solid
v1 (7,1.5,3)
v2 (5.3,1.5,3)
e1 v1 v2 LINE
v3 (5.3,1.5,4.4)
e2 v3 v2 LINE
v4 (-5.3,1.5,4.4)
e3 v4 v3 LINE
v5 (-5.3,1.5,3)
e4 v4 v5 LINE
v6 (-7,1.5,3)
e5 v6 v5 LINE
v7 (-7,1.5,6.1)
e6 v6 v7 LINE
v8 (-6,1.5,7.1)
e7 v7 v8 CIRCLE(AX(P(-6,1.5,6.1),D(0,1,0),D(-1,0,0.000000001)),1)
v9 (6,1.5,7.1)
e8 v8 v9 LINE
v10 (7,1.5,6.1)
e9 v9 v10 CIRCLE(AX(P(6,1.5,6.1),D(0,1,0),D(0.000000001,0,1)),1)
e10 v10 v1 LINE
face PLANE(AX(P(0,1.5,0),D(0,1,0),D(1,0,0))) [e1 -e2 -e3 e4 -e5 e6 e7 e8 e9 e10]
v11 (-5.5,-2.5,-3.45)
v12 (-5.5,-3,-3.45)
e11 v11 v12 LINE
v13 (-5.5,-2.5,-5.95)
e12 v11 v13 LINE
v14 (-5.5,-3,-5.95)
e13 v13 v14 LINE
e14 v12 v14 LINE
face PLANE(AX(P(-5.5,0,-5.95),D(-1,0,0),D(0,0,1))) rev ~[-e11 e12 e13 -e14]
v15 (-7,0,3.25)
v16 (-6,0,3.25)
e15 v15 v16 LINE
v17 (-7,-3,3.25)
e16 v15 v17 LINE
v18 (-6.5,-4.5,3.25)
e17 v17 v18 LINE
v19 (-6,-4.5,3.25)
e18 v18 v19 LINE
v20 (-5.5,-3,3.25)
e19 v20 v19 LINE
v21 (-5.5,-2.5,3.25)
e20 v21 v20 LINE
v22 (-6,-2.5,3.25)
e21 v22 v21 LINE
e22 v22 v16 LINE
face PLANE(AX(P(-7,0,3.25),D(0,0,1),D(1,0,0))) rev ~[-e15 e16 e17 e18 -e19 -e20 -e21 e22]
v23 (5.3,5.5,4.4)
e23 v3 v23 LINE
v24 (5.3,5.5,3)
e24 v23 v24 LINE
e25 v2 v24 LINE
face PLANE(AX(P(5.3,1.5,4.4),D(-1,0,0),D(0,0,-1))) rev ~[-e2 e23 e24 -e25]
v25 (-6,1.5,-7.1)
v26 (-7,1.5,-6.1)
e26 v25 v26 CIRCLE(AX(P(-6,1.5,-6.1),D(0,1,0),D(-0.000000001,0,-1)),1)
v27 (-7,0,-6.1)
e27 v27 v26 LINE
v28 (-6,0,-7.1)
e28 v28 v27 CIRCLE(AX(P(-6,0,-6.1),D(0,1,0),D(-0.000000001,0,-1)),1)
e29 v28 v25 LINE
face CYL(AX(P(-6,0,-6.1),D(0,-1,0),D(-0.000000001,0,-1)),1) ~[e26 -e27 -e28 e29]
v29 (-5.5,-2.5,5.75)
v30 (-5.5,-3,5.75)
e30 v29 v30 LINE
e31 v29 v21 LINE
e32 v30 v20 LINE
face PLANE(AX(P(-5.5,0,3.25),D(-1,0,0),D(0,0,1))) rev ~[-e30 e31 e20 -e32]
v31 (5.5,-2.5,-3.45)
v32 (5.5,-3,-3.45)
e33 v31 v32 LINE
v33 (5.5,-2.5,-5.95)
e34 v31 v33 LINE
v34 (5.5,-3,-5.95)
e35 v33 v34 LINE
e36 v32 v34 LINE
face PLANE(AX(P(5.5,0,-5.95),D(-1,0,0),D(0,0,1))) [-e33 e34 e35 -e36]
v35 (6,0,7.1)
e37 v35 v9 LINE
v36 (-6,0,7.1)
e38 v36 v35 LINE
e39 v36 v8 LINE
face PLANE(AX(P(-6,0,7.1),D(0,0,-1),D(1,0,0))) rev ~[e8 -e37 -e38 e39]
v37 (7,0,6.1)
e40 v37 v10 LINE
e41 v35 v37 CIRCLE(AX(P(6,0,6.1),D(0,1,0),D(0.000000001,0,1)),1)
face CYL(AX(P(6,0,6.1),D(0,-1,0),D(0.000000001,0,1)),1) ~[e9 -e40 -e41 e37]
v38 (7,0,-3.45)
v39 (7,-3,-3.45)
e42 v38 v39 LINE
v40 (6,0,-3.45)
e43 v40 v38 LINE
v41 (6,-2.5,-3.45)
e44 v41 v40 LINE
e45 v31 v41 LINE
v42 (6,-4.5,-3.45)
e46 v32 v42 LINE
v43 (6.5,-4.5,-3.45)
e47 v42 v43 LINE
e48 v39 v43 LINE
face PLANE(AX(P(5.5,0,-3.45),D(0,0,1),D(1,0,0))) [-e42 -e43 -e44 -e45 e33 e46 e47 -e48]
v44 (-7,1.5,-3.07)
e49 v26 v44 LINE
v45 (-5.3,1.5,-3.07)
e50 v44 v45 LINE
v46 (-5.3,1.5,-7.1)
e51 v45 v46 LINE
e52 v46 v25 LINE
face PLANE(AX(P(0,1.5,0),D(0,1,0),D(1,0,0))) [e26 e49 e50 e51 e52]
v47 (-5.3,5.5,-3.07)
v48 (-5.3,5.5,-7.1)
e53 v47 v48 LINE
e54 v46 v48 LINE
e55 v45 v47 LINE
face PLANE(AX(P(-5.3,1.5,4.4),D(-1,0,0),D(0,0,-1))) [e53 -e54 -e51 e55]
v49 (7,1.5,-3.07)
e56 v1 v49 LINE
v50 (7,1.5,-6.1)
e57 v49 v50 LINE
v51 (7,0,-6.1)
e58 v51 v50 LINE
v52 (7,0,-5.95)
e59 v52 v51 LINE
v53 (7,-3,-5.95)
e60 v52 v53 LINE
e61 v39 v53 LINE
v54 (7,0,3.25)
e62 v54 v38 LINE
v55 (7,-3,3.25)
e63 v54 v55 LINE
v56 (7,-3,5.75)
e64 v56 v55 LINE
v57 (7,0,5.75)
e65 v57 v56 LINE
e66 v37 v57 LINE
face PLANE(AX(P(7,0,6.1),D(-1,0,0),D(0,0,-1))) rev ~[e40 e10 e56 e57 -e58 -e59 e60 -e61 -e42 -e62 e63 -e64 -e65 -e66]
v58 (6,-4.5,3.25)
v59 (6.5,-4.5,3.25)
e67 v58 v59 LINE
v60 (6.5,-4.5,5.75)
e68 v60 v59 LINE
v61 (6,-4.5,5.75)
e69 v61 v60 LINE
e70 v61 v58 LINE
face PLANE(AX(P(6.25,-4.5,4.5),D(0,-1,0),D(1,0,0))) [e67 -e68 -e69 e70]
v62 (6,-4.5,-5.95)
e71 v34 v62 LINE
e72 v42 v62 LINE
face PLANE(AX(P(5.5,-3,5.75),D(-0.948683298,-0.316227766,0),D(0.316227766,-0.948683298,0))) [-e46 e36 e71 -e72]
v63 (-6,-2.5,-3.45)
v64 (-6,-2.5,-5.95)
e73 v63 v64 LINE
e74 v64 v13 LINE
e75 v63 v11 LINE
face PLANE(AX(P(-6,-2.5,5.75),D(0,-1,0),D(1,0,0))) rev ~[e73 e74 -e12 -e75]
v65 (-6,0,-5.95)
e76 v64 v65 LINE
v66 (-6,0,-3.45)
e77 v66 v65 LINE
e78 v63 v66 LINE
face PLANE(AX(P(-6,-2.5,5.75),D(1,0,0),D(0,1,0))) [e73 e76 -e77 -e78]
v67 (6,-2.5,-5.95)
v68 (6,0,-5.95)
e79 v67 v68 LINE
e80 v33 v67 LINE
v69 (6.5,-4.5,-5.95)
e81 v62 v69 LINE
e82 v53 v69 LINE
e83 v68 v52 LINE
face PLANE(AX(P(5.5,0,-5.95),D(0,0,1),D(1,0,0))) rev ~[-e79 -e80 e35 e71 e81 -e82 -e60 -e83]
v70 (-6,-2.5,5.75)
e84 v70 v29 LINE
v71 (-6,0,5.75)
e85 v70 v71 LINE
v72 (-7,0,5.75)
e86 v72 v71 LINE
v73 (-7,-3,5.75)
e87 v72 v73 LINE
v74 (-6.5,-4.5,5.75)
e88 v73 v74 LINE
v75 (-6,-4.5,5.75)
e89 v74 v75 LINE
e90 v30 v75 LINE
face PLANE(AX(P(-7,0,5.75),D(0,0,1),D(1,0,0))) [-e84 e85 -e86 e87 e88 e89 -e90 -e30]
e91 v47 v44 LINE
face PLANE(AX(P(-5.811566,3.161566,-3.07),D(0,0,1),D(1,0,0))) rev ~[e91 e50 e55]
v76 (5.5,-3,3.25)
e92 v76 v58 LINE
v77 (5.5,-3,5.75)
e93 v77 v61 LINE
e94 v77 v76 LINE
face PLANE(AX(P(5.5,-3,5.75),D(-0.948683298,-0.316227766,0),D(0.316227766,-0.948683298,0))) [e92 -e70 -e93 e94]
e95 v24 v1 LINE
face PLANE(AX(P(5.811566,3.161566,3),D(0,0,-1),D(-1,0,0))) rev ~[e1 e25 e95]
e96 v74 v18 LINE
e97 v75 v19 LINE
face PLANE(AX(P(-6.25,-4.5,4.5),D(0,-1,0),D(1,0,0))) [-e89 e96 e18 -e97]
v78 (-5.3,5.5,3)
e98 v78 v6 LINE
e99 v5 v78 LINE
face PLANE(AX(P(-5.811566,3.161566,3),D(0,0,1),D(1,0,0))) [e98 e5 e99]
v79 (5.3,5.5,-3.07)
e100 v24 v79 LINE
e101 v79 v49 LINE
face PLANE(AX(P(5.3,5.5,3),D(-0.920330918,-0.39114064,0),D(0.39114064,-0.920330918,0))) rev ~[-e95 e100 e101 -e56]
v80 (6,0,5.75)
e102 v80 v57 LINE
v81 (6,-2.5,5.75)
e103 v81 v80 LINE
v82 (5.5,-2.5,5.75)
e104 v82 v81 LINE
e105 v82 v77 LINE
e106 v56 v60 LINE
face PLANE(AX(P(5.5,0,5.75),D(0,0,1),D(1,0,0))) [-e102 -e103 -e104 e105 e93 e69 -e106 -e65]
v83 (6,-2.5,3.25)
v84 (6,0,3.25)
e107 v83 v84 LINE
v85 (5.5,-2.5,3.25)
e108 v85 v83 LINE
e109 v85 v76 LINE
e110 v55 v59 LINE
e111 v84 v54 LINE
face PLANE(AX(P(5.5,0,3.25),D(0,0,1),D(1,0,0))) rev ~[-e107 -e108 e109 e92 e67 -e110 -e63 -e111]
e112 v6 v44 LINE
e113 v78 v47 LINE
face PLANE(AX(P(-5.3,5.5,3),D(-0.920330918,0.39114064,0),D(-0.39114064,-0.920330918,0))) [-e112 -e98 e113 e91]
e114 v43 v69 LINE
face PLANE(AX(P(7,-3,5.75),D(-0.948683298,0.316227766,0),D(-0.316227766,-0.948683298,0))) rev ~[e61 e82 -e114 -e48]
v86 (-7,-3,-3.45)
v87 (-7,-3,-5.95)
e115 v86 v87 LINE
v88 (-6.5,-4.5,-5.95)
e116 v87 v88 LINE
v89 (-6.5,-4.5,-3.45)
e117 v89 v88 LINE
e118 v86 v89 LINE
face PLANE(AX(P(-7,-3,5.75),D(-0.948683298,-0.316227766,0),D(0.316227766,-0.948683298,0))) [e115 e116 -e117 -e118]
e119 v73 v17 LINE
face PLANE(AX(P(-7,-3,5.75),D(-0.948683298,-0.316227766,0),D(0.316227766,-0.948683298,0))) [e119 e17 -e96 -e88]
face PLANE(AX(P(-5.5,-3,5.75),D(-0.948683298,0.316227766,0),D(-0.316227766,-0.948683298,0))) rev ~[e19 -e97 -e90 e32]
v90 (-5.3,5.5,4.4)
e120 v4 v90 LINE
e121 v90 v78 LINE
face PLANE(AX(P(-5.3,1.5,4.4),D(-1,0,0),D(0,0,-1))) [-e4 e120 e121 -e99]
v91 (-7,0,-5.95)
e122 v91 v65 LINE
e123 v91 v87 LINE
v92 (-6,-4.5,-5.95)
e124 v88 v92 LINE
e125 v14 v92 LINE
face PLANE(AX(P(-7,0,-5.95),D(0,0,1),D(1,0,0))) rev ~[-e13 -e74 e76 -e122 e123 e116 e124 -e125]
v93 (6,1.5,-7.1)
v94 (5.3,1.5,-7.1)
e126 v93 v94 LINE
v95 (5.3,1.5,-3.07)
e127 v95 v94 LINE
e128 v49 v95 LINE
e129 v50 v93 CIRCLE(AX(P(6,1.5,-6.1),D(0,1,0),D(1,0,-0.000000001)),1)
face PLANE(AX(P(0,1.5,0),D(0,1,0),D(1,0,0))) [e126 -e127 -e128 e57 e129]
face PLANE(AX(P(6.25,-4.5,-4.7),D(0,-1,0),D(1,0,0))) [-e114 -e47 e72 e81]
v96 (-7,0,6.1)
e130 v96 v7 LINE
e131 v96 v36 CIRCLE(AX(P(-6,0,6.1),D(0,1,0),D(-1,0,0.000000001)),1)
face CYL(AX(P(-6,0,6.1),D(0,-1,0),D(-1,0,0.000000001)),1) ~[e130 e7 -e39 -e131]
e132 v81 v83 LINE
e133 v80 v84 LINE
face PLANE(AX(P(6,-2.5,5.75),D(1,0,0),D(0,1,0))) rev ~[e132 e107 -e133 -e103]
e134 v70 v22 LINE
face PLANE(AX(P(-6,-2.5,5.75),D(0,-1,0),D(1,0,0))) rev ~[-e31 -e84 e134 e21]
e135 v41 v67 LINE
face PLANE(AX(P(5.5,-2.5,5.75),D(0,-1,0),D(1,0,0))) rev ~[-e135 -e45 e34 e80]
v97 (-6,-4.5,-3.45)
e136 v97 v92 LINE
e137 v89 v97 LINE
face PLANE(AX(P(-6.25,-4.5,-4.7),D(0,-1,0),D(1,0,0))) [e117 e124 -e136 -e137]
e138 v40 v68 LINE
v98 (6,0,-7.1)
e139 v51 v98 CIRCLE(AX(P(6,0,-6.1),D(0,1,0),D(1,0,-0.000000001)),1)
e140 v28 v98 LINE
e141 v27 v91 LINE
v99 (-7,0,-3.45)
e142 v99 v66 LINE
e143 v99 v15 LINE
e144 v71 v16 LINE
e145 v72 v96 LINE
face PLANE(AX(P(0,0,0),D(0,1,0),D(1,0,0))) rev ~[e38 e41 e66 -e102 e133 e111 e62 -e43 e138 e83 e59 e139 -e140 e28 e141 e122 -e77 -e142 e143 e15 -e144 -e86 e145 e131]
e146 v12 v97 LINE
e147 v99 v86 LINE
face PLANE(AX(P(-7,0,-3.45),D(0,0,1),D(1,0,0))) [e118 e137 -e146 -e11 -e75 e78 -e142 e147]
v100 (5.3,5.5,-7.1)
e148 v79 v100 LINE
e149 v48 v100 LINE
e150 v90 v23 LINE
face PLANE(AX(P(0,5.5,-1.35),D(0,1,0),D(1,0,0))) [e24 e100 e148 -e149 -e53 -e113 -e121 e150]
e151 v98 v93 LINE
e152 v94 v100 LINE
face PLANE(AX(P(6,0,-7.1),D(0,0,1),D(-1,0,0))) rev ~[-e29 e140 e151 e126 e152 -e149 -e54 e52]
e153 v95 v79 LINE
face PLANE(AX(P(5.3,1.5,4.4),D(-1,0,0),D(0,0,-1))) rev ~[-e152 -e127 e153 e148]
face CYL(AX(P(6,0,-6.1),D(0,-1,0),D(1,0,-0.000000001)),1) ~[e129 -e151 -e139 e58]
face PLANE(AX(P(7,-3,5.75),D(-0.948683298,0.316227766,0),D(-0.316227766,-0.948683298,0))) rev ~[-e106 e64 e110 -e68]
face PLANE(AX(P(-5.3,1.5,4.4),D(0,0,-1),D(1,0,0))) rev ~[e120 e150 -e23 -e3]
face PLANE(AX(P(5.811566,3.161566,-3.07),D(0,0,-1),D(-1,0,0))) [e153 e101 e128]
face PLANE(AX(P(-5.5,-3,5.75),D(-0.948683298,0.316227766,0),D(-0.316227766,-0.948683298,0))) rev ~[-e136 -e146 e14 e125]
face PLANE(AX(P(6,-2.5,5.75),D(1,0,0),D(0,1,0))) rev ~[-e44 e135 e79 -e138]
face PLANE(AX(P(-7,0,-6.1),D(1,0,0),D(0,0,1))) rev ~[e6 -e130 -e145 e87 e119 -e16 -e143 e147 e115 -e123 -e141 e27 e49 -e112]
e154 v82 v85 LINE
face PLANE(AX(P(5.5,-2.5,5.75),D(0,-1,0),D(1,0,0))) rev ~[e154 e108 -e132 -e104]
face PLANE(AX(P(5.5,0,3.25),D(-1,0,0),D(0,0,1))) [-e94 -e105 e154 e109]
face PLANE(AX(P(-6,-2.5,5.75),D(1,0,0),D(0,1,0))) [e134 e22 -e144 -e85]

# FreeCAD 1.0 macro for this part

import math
import FreeCAD as App
import Part
import Sketcher
from FreeCAD import Vector
Q = App.Units.Quantity


def add_polygon(sketch, points):
    """Adds a closed chain of lines whose ends are joined by coincident constraints."""
    first, n = sketch.GeometryCount, len(points)
    for a, b in zip(points, points[1:] + points[:1]):
        sketch.addGeometry(Part.LineSegment(App.Vector(*a, 0), App.Vector(*b, 0)), False)
    for i in range(n):
        sketch.addConstraint(Sketcher.Constraint("Coincident", first + i, 2, first + (i + 1) % n, 1))

doc = App.newDocument("Part")
body = doc.addObject("PartDesign::Body", "Body")

# Sketch on XZ plane
sketch1 = body.newObject("Sketcher::SketchObject", "Sketch")
sketch1.AttachmentSupport = (doc.getObject("XZ_Plane"), [""])
sketch1.MapMode = "FlatFace"
sketch1.addGeometry(Part.LineSegment(Vector(-6, 7.1, 0), Vector(6, 7.1, 0)), False)
sketch1.addGeometry(Part.ArcOfCircle(Part.Circle(Vector(6, 6.1, 0), Vector(0, 0, 1), 1), math.radians(0), math.radians(90)), False)
sketch1.addGeometry(Part.LineSegment(Vector(7, 6.1, 0), Vector(7, -6.1, 0)), False)
sketch1.addGeometry(Part.ArcOfCircle(Part.Circle(Vector(6, -6.1, 0), Vector(0, 0, 1), 1), math.radians(-90), math.radians(0)), False)
sketch1.addGeometry(Part.LineSegment(Vector(6, -7.1, 0), Vector(-6, -7.1, 0)), False)
sketch1.addGeometry(Part.ArcOfCircle(Part.Circle(Vector(-6, -6.1, 0), Vector(0, 0, 1), 1), math.radians(-180), math.radians(-90)), False)
sketch1.addGeometry(Part.LineSegment(Vector(-7, -6.1, 0), Vector(-7, 6.1, 0)), False)
sketch1.addGeometry(Part.ArcOfCircle(Part.Circle(Vector(-6, 6.1, 0), Vector(0, 0, 1), 1), math.radians(90), math.radians(180)), False)
sketch1.addConstraint(Sketcher.Constraint("Tangent", 0, 2, 1, 2))
sketch1.addConstraint(Sketcher.Constraint("Tangent", 1, 1, 2, 1))
sketch1.addConstraint(Sketcher.Constraint("Tangent", 2, 2, 3, 2))
sketch1.addConstraint(Sketcher.Constraint("Tangent", 3, 1, 4, 1))
sketch1.addConstraint(Sketcher.Constraint("Tangent", 4, 2, 5, 2))
sketch1.addConstraint(Sketcher.Constraint("Tangent", 5, 1, 6, 1))
sketch1.addConstraint(Sketcher.Constraint("Tangent", 6, 2, 7, 2))
sketch1.addConstraint(Sketcher.Constraint("Tangent", 7, 1, 0, 1))
sketch1.addConstraint(Sketcher.Constraint("Horizontal", 0))
sketch1.addConstraint(Sketcher.Constraint("Vertical", 2))
sketch1.addConstraint(Sketcher.Constraint("Horizontal", 4))
sketch1.addConstraint(Sketcher.Constraint("Vertical", 6))
sketch1.addConstraint(Sketcher.Constraint("Equal", 1, 3))
sketch1.addConstraint(Sketcher.Constraint("Equal", 3, 5))
sketch1.addConstraint(Sketcher.Constraint("Equal", 5, 7))
sketch1.addConstraint(Sketcher.Constraint("Symmetric", 1, 3, 5, 3, -1, 1))
sketch1.addConstraint(Sketcher.Constraint("Radius", 1, Q("1 mm")))
sketch1.addConstraint(Sketcher.Constraint("DistanceX", 0, 1, 0, 2, Q("12 mm")))
sketch1.addConstraint(Sketcher.Constraint("DistanceY", 2, 2, 2, 1, Q("12.2 mm")))
pad1 = body.newObject("PartDesign::Pad", "Pad")
pad1.Profile = sketch1
pad1.Length = 1.5
pad1.Reversed = True

# Sketch on XZ plane
sketch2 = body.newObject("Sketcher::SketchObject", "Sketch001")
sketch2.AttachmentSupport = (doc.getObject("XZ_Plane"), [""])
sketch2.MapMode = "FlatFace"
sketch2.AttachmentOffset = App.Placement(Vector(0, 0, -1.5), App.Rotation())
add_polygon(sketch2, [(-5, -7), (-5, 4), (5, 4), (5, -7)])  # lines 0-3
sketch2.addConstraint(Sketcher.Constraint("Vertical", 0))
sketch2.addConstraint(Sketcher.Constraint("Horizontal", 1))
sketch2.addConstraint(Sketcher.Constraint("Vertical", 2))
sketch2.addConstraint(Sketcher.Constraint("Horizontal", 3))
sketch2.addConstraint(Sketcher.Constraint("DistanceX", 1, 1, 1, 2, Q("10.6 mm")))
sketch2.addConstraint(Sketcher.Constraint("DistanceY", 0, 1, 0, 2, Q("11.5 mm")))
sketch2.addConstraint(Sketcher.Constraint("DistanceX", 0, 2, -1, 1, Q("5.3 mm")))
sketch2.addConstraint(Sketcher.Constraint("DistanceY", -1, 1, 0, 2, Q("4.4 mm")))
pad2 = body.newObject("PartDesign::Pad", "Pad001")
pad2.Profile = sketch2
pad2.Length = 4
pad2.Reversed = True

# Sketch on XY plane
sketch3 = body.newObject("Sketcher::SketchObject", "Sketch002")
sketch3.AttachmentSupport = (doc.getObject("XY_Plane"), [""])
sketch3.MapMode = "FlatFace"
sketch3.AttachmentOffset = App.Placement(Vector(0, 0, 3), App.Rotation())
add_polygon(sketch3, [(-5.3, 5.5), (-7, 1.5), (-5.3, 1.5)])  # lines 0-2
add_polygon(sketch3, [(7, 1.5), (5.3, 5.5), (5.3, 1.5)])  # lines 3-5
sketch3.addConstraint(Sketcher.Constraint("Horizontal", 1))
sketch3.addConstraint(Sketcher.Constraint("Vertical", 2))
sketch3.addConstraint(Sketcher.Constraint("Vertical", 4))
sketch3.addConstraint(Sketcher.Constraint("Horizontal", 5))
sketch3.addConstraint(Sketcher.Constraint("Symmetric", 2, 2, 3, 2, -2))
sketch3.addConstraint(Sketcher.Constraint("Symmetric", 0, 2, 5, 2, -2))
sketch3.addConstraint(Sketcher.Constraint("DistanceY", 2, 1, 2, 2, Q("4 mm")))
sketch3.addConstraint(Sketcher.Constraint("DistanceX", 1, 1, 1, 2, Q("1.7 mm")))
sketch3.addConstraint(Sketcher.Constraint("DistanceX", 0, 2, -1, 1, Q("7 mm")))
sketch3.addConstraint(Sketcher.Constraint("DistanceY", -1, 1, 0, 2, Q("1.5 mm")))
pad3 = body.newObject("PartDesign::Pad", "Pad002")
pad3.Profile = sketch3
pad3.Length = 6.07
pad3.Reversed = True

# Sketch on XZ plane
sketch4 = body.newObject("Sketcher::SketchObject", "Sketch003")
sketch4.AttachmentSupport = (doc.getObject("XZ_Plane"), [""])
sketch4.MapMode = "FlatFace"
add_polygon(sketch4, [(-7, 5.8), (-7, 3.2), (-5.5, 3.2), (-5.5, 5.8)])  # lines 0-3
add_polygon(sketch4, [(-7, -3.5), (-7, -6), (-5.5, -6), (-5.5, -3.5)])  # lines 4-7
add_polygon(sketch4, [(5.5, -3.5), (5.5, -6), (7, -6), (7, -3.5)])  # lines 8-11
add_polygon(sketch4, [(5.5, 5.8), (5.5, 3.2), (7, 3.2), (7, 5.8)])  # lines 12-15
sketch4.addConstraint(Sketcher.Constraint("Vertical", 0))
sketch4.addConstraint(Sketcher.Constraint("Horizontal", 1))
sketch4.addConstraint(Sketcher.Constraint("Vertical", 2))
sketch4.addConstraint(Sketcher.Constraint("Horizontal", 3))
sketch4.addConstraint(Sketcher.Constraint("Vertical", 4))
sketch4.addConstraint(Sketcher.Constraint("Horizontal", 5))
sketch4.addConstraint(Sketcher.Constraint("Vertical", 6))
sketch4.addConstraint(Sketcher.Constraint("Horizontal", 7))
sketch4.addConstraint(Sketcher.Constraint("Vertical", 8))
sketch4.addConstraint(Sketcher.Constraint("Horizontal", 9))
sketch4.addConstraint(Sketcher.Constraint("Vertical", 10))
sketch4.addConstraint(Sketcher.Constraint("Horizontal", 11))
sketch4.addConstraint(Sketcher.Constraint("Vertical", 12))
sketch4.addConstraint(Sketcher.Constraint("Horizontal", 13))
sketch4.addConstraint(Sketcher.Constraint("Vertical", 14))
sketch4.addConstraint(Sketcher.Constraint("Horizontal", 15))
sketch4.addConstraint(Sketcher.Constraint("Symmetric", 5, 2, 8, 2, -2))
sketch4.addConstraint(Sketcher.Constraint("Symmetric", 7, 2, 10, 2, -2))
sketch4.addConstraint(Sketcher.Constraint("Symmetric", 1, 2, 12, 2, -2))
sketch4.addConstraint(Sketcher.Constraint("Symmetric", 3, 2, 14, 2, -2))
sketch4.addConstraint(Sketcher.Constraint("Vertical", 3, 2, 4, 2))
sketch4.addConstraint(Sketcher.Constraint("Vertical", 2, 2, 5, 2))
sketch4.addConstraint(Sketcher.Constraint("Equal", 2, 4))
sketch4.addConstraint(Sketcher.Constraint("DistanceX", 1, 1, 1, 2, Q("1.5 mm")))
sketch4.addConstraint(Sketcher.Constraint("DistanceY", 0, 2, 0, 1, Q("2.5 mm")))
sketch4.addConstraint(Sketcher.Constraint("DistanceX", 0, 2, -1, 1, Q("7 mm")))
sketch4.addConstraint(Sketcher.Constraint("DistanceY", 4, 2, 0, 2, Q("9.2 mm")))
sketch4.addConstraint(Sketcher.Constraint("DistanceY", -1, 1, 0, 2, Q("3.25 mm")))
pad4 = body.newObject("PartDesign::Pad", "Pad003")
pad4.Profile = sketch4
pad4.Length = 4.5

# Sketch on XY plane
sketch5 = body.newObject("Sketcher::SketchObject", "Sketch004")
sketch5.AttachmentSupport = (doc.getObject("XY_Plane"), [""])
sketch5.MapMode = "FlatFace"
sketch5.AttachmentOffset = App.Placement(Vector(0, 0, 5.75), App.Rotation())
add_polygon(sketch5, [(-6, 0), (-6, -2.5), (-5.5, -2.5), (-5.5, 0)])  # lines 0-3
add_polygon(sketch5, [(-7, -3), (-7, -4.5), (-6.5, -4.5)])  # lines 4-6
add_polygon(sketch5, [(-5.5, -3), (-6, -4.5), (-5.5, -4.5)])  # lines 7-9
add_polygon(sketch5, [(5.5, 0), (5.5, -2.5), (6, -2.5), (6, 0)])  # lines 10-13
add_polygon(sketch5, [(6, -4.5), (5.5, -3), (5.5, -4.5)])  # lines 14-16
add_polygon(sketch5, [(7, -4.5), (7, -3), (6.5, -4.5)])  # lines 17-19
sketch5.addConstraint(Sketcher.Constraint("Vertical", 0))
sketch5.addConstraint(Sketcher.Constraint("Horizontal", 1))
sketch5.addConstraint(Sketcher.Constraint("Vertical", 2))
sketch5.addConstraint(Sketcher.Constraint("Horizontal", 3))
sketch5.addConstraint(Sketcher.Constraint("Vertical", 4))
sketch5.addConstraint(Sketcher.Constraint("Horizontal", 5))
sketch5.addConstraint(Sketcher.Constraint("Horizontal", 8))
sketch5.addConstraint(Sketcher.Constraint("Vertical", 9))
sketch5.addConstraint(Sketcher.Constraint("Vertical", 10))
sketch5.addConstraint(Sketcher.Constraint("Horizontal", 11))
sketch5.addConstraint(Sketcher.Constraint("Vertical", 12))
sketch5.addConstraint(Sketcher.Constraint("Horizontal", 13))
sketch5.addConstraint(Sketcher.Constraint("Vertical", 15))
sketch5.addConstraint(Sketcher.Constraint("Horizontal", 16))
sketch5.addConstraint(Sketcher.Constraint("Vertical", 17))
sketch5.addConstraint(Sketcher.Constraint("Horizontal", 19))
sketch5.addConstraint(Sketcher.Constraint("Symmetric", 3, 2, 12, 2, -1, 1))
sketch5.addConstraint(Sketcher.Constraint("Symmetric", 1, 2, 10, 2, -2))
sketch5.addConstraint(Sketcher.Constraint("Symmetric", 9, 2, 14, 2, -2))
sketch5.addConstraint(Sketcher.Constraint("Symmetric", 7, 2, 16, 2, -2))
sketch5.addConstraint(Sketcher.Constraint("Symmetric", 6, 2, 17, 2, -2))
sketch5.addConstraint(Sketcher.Constraint("Symmetric", 5, 2, 18, 2, -2))
sketch5.addConstraint(Sketcher.Constraint("PointOnObject", 2, 2, -1))
sketch5.addConstraint(Sketcher.Constraint("Parallel", 6, 14))
sketch5.addConstraint(Sketcher.Constraint("Horizontal", 5, 2, 7, 2))
sketch5.addConstraint(Sketcher.Constraint("Horizontal", 6, 2, 9, 2))
sketch5.addConstraint(Sketcher.Constraint("Vertical", 3, 2, 7, 2))
sketch5.addConstraint(Sketcher.Constraint("Vertical", 2, 2, 8, 2))
sketch5.addConstraint(Sketcher.Constraint("DistanceX", 1, 1, 1, 2, Q("0.5 mm")))
sketch5.addConstraint(Sketcher.Constraint("DistanceY", 0, 2, 0, 1, Q("2.5 mm")))
sketch5.addConstraint(Sketcher.Constraint("DistanceY", 4, 2, 4, 1, Q("1.5 mm")))
sketch5.addConstraint(Sketcher.Constraint("DistanceX", 0, 2, -1, 1, Q("6 mm")))
sketch5.addConstraint(Sketcher.Constraint("DistanceX", 4, 2, -1, 1, Q("7 mm")))
sketch5.addConstraint(Sketcher.Constraint("DistanceY", 6, 2, -1, 1, Q("3 mm")))
pocket1 = body.newObject("PartDesign::Pocket", "Pocket")
pocket1.Profile = sketch5
pocket1.Type = "ThroughAll"

doc.recompute()
